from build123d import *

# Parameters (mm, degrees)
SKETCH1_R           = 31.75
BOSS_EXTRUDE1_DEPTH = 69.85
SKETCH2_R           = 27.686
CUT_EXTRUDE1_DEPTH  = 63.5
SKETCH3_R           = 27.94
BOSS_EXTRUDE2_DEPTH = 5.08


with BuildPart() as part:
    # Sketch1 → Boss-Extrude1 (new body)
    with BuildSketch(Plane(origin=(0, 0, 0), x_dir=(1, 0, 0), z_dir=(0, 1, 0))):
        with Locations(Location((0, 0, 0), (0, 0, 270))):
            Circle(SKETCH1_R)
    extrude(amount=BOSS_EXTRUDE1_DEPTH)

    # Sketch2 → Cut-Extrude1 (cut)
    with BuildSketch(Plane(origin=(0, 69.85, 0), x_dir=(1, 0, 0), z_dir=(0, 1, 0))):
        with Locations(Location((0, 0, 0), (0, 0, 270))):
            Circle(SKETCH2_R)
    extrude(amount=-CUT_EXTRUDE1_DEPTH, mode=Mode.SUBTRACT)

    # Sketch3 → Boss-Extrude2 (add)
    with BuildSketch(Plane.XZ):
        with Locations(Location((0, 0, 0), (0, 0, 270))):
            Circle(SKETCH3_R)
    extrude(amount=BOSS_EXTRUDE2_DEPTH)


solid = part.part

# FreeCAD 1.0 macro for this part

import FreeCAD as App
import Part
import Sketcher
Q = App.Units.Quantity

doc = App.newDocument("Part")
body = doc.addObject("PartDesign::Body", "Body")

sketch1 = body.newObject("Sketcher::SketchObject", "Sketch")
sketch1.AttachmentSupport = (doc.getObject("XZ_Plane"), [""])
sketch1.MapMode = "FlatFace"
sketch1.addGeometry(Part.Circle(App.Vector(0, 0, 0), App.Vector(0, 0, 1), 32), False)
sketch1.addConstraint([
    Sketcher.Constraint("Coincident", 0, 3, -1, 1),
    Sketcher.Constraint("Diameter", 0, Q("2.5 in")),
])
pad1 = body.newObject("PartDesign::Pad", "Pad")
pad1.Profile = sketch1
pad1.Length = Q("2.75 in")
pad1.Reversed = True

sketch2 = body.newObject("Sketcher::SketchObject", "Sketch001")
sketch2.AttachmentSupport = (doc.getObject("XZ_Plane"), [""])
sketch2.MapMode = "FlatFace"
sketch2.AttachmentOffset = App.Placement(App.Vector(0, 0, -2.75 * 25.4), App.Rotation())
sketch2.addGeometry(Part.Circle(App.Vector(0, 0, 0), App.Vector(0, 0, 1), 28), False)
sketch2.addConstraint([
    Sketcher.Constraint("Coincident", 0, 3, -1, 1),
    Sketcher.Constraint("Diameter", 0, Q("2.18 in")),
])
pocket1 = body.newObject("PartDesign::Pocket", "Pocket")
pocket1.Profile = sketch2
pocket1.Length = Q("2.5 in")
pocket1.Reversed = True

sketch3 = body.newObject("Sketcher::SketchObject", "Sketch002")
sketch3.AttachmentSupport = (doc.getObject("XZ_Plane"), [""])
sketch3.MapMode = "FlatFace"
sketch3.addGeometry(Part.Circle(App.Vector(0, 0, 0), App.Vector(0, 0, 1), 28), False)
sketch3.addConstraint([
    Sketcher.Constraint("Coincident", 0, 3, -1, 1),
    Sketcher.Constraint("Diameter", 0, Q("2.2 in")),
])
pad2 = body.newObject("PartDesign::Pad", "Pad001")
pad2.Profile = sketch3
pad2.Length = Q("0.2 in")

doc.recompute()
